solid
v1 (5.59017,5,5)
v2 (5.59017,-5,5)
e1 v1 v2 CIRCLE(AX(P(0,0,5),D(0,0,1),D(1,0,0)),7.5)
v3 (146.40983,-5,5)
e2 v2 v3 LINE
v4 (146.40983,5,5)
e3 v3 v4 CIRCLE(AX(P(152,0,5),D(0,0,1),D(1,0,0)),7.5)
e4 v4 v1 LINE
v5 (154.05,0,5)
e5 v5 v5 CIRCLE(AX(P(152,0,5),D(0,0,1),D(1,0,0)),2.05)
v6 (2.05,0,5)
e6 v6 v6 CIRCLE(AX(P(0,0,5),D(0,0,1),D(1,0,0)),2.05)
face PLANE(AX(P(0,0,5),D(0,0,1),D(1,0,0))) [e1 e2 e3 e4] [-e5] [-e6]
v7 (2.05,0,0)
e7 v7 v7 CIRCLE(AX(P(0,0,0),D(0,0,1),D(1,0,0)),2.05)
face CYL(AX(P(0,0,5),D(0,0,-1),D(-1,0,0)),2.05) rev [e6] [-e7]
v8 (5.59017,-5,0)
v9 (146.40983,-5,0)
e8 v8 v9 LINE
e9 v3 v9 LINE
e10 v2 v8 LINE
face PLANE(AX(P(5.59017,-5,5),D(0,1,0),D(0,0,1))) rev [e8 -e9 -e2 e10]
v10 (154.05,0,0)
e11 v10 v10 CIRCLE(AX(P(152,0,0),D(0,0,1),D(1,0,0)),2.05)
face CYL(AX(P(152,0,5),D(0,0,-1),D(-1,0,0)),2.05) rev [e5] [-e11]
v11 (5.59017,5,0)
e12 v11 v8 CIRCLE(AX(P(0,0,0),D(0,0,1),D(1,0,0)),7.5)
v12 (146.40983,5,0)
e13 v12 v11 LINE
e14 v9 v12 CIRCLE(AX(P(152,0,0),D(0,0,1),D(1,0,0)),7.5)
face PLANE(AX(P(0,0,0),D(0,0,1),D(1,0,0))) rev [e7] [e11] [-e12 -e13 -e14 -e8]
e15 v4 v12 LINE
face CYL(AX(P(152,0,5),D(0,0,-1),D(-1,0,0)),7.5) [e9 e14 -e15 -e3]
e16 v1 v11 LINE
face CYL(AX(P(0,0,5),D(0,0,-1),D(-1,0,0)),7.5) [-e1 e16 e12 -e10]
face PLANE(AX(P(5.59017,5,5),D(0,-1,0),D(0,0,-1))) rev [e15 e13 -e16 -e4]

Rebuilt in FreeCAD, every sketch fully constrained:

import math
import FreeCAD as App
import Part
import Sketcher

V = App.Vector

doc = App.newDocument("Part")
body = doc.addObject("PartDesign::Body", "Body")

# Sketch on XY plane
sketch1 = body.newObject("Sketcher::SketchObject", "Sketch")
sketch1.AttachmentSupport = (doc.getObject("XY_Plane"), [""])
sketch1.MapMode = "FlatFace"
sketch1.addGeometry(Part.LineSegment(V(5.6, -5, 0), V(146.4, -5, 0)), False)
sketch1.addGeometry(Part.ArcOfCircle(Part.Circle(V(152, 0, 0), V(0, 0, 1), 7.5), math.radians(-138), math.radians(138)), False)
sketch1.addGeometry(Part.LineSegment(V(146.4, 5, 0), V(5.6, 5, 0)), False)
sketch1.addGeometry(Part.ArcOfCircle(Part.Circle(V(0, 0, 0), V(0, 0, 1), 7.5), math.radians(42), math.radians(318)), False)
sketch1.addGeometry(Part.Circle(V(0, 0, 0), V(0, 0, 1), 2), False)
sketch1.addGeometry(Part.Circle(V(152, 0, 0), V(0, 0, 1), 2), False)
sketch1.addConstraint(Sketcher.Constraint("Coincident", 0, 2, 1, 1))
sketch1.addConstraint(Sketcher.Constraint("Coincident", 1, 2, 2, 1))
sketch1.addConstraint(Sketcher.Constraint("Coincident", 2, 2, 3, 1))
sketch1.addConstraint(Sketcher.Constraint("Coincident", 3, 2, 0, 1))
sketch1.addConstraint(Sketcher.Constraint("Horizontal", 0))
sketch1.addConstraint(Sketcher.Constraint("Horizontal", 2))
sketch1.addConstraint(Sketcher.Constraint("Coincident", 3, 3, -1, 1))
sketch1.addConstraint(Sketcher.Constraint("Coincident", 4, 3, -1, 1))
sketch1.addConstraint(Sketcher.Constraint("Coincident", 5, 3, 1, 3))
sketch1.addConstraint(Sketcher.Constraint("Equal", 1, 3))
sketch1.addConstraint(Sketcher.Constraint("Equal", 4, 5))
sketch1.addConstraint(Sketcher.Constraint("Symmetric", 0, 2, 1, 2, -1))
sketch1.addConstraint(Sketcher.Constraint("Diameter", 4, 4.1))
sketch1.addConstraint(Sketcher.Constraint("Radius", 1, 7.5))
sketch1.addConstraint(Sketcher.Constraint("DistanceX", -1, 1, 1, 3, 152.0))
sketch1.addConstraint(Sketcher.Constraint("DistanceY", 0, 2, -1, 1, 5.0))
pad1 = body.newObject("PartDesign::Pad", "Pad")
pad1.Profile = sketch1
pad1.Length = 5

doc.recompute()
